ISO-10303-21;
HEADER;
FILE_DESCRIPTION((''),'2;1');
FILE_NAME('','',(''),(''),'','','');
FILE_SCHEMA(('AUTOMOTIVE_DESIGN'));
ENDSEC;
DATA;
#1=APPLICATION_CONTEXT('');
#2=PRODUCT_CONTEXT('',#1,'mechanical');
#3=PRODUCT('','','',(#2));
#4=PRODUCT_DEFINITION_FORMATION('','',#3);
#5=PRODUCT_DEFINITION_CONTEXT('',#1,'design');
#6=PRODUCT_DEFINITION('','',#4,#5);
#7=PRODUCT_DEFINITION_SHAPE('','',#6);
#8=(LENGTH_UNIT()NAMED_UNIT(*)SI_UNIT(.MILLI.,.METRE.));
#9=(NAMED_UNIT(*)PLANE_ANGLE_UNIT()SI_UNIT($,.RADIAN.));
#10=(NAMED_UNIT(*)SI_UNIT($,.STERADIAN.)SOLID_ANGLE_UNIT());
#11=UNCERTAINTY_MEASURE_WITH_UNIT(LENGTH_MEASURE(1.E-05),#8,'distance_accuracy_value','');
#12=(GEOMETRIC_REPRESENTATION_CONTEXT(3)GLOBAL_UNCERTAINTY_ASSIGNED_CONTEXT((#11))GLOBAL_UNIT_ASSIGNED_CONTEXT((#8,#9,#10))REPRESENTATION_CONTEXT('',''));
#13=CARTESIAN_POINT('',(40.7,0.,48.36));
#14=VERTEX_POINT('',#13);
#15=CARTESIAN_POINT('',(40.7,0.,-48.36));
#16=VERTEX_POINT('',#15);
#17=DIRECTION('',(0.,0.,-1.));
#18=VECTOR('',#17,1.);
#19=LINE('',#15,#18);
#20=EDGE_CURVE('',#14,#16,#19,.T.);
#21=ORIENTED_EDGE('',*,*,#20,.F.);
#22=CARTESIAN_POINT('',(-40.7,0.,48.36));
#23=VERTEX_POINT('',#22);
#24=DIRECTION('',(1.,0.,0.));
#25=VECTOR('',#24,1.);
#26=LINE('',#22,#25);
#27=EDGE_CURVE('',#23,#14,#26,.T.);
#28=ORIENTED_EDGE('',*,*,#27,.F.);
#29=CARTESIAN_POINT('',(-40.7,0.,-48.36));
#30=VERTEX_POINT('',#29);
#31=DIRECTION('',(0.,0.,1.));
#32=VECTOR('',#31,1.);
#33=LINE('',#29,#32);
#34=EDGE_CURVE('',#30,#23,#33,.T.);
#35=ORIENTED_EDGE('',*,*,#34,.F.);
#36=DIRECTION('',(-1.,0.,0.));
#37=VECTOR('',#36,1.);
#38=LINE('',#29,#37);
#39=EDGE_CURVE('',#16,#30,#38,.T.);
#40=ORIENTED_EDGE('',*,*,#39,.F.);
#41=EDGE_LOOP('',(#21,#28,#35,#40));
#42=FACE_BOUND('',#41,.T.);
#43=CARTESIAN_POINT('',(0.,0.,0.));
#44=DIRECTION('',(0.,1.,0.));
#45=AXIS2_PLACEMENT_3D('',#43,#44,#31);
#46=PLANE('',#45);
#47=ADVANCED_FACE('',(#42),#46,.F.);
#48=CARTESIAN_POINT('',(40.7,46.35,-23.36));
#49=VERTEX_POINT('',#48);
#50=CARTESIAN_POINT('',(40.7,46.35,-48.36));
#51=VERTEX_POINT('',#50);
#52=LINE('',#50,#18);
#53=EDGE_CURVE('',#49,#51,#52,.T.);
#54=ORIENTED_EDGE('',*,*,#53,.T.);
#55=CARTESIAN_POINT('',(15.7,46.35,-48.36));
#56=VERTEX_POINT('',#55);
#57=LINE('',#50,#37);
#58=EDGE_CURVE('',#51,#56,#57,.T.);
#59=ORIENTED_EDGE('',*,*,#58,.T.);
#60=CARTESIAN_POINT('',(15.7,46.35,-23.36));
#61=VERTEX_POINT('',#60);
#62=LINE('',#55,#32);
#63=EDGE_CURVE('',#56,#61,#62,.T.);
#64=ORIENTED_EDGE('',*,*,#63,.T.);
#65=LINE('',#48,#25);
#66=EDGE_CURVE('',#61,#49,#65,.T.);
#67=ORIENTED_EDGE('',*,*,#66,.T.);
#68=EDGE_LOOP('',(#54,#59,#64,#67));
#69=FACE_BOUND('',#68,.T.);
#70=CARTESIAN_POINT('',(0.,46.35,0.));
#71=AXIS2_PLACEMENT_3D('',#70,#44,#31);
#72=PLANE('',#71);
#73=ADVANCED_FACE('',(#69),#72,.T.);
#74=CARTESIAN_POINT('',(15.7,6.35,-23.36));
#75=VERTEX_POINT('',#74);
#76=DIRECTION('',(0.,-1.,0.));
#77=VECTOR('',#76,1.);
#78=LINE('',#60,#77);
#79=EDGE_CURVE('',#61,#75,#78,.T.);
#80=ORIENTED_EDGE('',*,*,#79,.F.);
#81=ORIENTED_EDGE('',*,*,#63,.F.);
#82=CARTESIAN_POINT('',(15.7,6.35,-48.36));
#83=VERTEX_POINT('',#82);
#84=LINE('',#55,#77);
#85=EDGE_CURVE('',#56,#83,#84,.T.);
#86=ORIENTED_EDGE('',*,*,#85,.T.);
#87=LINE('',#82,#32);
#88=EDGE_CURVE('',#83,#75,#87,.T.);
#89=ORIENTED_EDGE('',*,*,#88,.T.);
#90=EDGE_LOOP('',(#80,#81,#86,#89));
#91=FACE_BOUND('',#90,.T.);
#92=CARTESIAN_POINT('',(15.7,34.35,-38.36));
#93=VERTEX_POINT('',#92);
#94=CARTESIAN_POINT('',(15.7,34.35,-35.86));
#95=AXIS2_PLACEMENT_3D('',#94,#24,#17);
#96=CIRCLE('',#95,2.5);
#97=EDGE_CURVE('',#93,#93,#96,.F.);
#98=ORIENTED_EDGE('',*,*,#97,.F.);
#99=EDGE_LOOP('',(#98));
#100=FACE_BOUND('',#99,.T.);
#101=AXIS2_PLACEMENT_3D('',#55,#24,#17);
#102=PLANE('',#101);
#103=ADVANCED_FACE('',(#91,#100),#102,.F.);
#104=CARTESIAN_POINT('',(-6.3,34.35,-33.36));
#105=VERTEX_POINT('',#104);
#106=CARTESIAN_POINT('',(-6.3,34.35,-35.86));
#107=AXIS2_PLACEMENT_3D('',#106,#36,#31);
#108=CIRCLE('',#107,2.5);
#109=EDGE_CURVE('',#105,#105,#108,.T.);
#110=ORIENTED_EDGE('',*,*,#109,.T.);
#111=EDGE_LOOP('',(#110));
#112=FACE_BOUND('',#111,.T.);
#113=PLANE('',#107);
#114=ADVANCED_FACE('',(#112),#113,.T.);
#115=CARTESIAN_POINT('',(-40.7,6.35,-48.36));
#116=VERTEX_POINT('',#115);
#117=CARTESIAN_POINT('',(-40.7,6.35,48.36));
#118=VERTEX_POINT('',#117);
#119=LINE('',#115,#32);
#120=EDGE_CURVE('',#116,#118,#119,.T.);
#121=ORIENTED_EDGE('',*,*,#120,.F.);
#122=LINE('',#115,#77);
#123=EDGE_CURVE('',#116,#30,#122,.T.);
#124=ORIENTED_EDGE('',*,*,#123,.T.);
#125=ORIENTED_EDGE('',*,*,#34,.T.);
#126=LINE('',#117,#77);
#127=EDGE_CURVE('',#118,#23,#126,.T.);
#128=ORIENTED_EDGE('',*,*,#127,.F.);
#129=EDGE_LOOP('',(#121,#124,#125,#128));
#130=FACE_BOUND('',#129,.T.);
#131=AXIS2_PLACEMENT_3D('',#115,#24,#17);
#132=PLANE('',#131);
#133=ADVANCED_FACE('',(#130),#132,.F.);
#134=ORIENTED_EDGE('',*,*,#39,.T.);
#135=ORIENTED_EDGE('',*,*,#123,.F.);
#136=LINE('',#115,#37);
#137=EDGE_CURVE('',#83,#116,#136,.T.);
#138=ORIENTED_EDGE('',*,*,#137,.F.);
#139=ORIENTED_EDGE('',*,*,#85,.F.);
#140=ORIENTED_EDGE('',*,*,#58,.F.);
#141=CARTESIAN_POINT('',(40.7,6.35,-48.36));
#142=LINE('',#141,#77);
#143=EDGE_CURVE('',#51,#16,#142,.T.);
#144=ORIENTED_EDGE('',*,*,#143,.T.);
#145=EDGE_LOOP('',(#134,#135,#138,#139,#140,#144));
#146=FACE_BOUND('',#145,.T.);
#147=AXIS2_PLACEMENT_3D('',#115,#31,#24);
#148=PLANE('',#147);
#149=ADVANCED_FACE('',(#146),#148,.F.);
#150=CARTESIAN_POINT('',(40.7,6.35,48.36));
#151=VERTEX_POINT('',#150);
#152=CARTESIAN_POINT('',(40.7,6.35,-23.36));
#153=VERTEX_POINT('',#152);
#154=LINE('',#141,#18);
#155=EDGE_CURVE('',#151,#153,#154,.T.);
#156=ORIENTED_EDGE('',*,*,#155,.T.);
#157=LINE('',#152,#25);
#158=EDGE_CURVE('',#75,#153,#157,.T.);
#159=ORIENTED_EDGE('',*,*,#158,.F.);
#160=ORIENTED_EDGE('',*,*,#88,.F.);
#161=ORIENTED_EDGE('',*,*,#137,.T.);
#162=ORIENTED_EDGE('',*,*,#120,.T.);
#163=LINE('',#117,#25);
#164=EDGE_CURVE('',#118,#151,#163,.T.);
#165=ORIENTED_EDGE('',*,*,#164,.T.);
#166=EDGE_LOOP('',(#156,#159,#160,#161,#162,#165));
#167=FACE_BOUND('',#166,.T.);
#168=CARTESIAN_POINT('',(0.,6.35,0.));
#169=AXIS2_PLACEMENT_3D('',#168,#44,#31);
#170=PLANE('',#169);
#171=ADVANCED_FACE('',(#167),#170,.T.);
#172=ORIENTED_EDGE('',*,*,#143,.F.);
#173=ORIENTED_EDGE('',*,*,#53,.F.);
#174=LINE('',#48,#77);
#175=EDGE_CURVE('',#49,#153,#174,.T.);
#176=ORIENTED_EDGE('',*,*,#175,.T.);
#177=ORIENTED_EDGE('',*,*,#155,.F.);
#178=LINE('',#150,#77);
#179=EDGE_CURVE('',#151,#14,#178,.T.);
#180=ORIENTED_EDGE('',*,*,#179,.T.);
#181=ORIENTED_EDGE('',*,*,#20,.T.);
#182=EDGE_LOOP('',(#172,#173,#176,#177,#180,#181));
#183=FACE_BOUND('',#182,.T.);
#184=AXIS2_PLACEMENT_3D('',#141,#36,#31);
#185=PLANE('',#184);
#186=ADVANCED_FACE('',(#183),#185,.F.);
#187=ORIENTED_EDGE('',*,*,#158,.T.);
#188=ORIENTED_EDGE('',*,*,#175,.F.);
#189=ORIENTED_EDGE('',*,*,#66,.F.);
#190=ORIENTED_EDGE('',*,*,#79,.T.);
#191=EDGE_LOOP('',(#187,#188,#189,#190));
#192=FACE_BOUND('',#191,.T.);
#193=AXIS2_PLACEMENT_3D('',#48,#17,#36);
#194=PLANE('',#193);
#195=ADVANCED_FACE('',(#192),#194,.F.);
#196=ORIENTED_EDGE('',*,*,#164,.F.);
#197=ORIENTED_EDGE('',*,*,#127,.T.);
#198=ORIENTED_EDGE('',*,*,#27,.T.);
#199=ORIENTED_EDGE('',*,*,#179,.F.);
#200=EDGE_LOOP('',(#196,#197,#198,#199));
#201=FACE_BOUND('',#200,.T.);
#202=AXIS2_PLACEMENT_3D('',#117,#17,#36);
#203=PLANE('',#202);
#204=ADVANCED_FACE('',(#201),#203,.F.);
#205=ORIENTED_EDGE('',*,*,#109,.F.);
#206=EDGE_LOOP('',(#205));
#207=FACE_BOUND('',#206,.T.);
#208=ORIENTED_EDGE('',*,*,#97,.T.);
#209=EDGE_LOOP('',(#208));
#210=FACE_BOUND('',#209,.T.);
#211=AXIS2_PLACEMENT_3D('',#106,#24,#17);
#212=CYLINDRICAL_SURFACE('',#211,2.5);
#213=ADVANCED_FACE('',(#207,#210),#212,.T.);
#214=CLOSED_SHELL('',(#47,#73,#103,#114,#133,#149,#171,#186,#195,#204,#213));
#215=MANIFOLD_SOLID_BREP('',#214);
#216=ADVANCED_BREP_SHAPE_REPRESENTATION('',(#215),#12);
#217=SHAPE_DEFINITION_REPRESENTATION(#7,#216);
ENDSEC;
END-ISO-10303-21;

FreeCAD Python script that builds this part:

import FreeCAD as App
import Part
import Sketcher
from FreeCAD import Vector
Q = App.Units.Quantity


def add_polygon(sketch, points):
    """Adds a closed chain of lines whose ends are joined by coincident constraints."""
    first, n = sketch.GeometryCount, len(points)
    for a, b in zip(points, points[1:] + points[:1]):
        sketch.addGeometry(Part.LineSegment(App.Vector(*a, 0), App.Vector(*b, 0)), False)
    for i in range(n):
        sketch.addConstraint(Sketcher.Constraint("Coincident", first + i, 2, first + (i + 1) % n, 1))

doc = App.newDocument("Part")
body = doc.addObject("PartDesign::Body", "Body")

# Sketch on XZ plane
sketch1 = body.newObject("Sketcher::SketchObject", "Sketch")
sketch1.AttachmentSupport = (doc.getObject("XZ_Plane"), [""])
sketch1.MapMode = "FlatFace"
add_polygon(sketch1, [(-41, -48), (-41, 48), (41, 48), (41, -48)])  # lines 0-3
sketch1.addConstraint(Sketcher.Constraint("Vertical", 0))
sketch1.addConstraint(Sketcher.Constraint("Horizontal", 1))
sketch1.addConstraint(Sketcher.Constraint("Vertical", 2))
sketch1.addConstraint(Sketcher.Constraint("Horizontal", 3))
sketch1.addConstraint(Sketcher.Constraint("Symmetric", 0, 2, 2, 2, -1, 1))
sketch1.addConstraint(Sketcher.Constraint("DistanceX", 1, 1, 1, 2, Q("81.4 mm")))
sketch1.addConstraint(Sketcher.Constraint("DistanceY", 0, 1, 0, 2, Q("96.72 mm")))
pad1 = body.newObject("PartDesign::Pad", "Pad")
pad1.Profile = sketch1
pad1.Length = 6.35
pad1.Reversed = True

# Sketch on XZ plane
sketch2 = body.newObject("Sketcher::SketchObject", "Sketch001")
sketch2.AttachmentSupport = (doc.getObject("XZ_Plane"), [""])
sketch2.MapMode = "FlatFace"
sketch2.AttachmentOffset = App.Placement(Vector(0, 0, -6.35), App.Rotation())
add_polygon(sketch2, [(16, -48), (16, -23), (41, -23), (41, -48)])  # lines 0-3
sketch2.addConstraint(Sketcher.Constraint("Vertical", 0))
sketch2.addConstraint(Sketcher.Constraint("Horizontal", 1))
sketch2.addConstraint(Sketcher.Constraint("Vertical", 2))
sketch2.addConstraint(Sketcher.Constraint("Horizontal", 3))
sketch2.addConstraint(Sketcher.Constraint("Equal", 3, 0))
sketch2.addConstraint(Sketcher.Constraint("DistanceX", 1, 1, 1, 2, Q("25 mm")))
sketch2.addConstraint(Sketcher.Constraint("DistanceX", -1, 1, 0, 2, Q("15.7 mm")))
sketch2.addConstraint(Sketcher.Constraint("DistanceY", 0, 2, -1, 1, Q("23.36 mm")))
pad2 = body.newObject("PartDesign::Pad", "Pad001")
pad2.Profile = sketch2
pad2.Length = 40
pad2.Reversed = True

# Sketch on YZ plane
sketch3 = body.newObject("Sketcher::SketchObject", "Sketch002")
sketch3.AttachmentSupport = (doc.getObject("YZ_Plane"), [""])
sketch3.MapMode = "FlatFace"
sketch3.AttachmentOffset = App.Placement(Vector(0, 0, 15.7), App.Rotation())
sketch3.addGeometry(Part.Circle(Vector(34.4, -35.9, 0), Vector(0, 0, 1), 2.5), False)
sketch3.addConstraint(Sketcher.Constraint("Diameter", 0, Q("5 mm")))
sketch3.addConstraint(Sketcher.Constraint("DistanceX", -1, 1, 0, 3, Q("34.35 mm")))
sketch3.addConstraint(Sketcher.Constraint("DistanceY", 0, 3, -1, 1, Q("35.86 mm")))
pad3 = body.newObject("PartDesign::Pad", "Pad002")
pad3.Profile = sketch3
pad3.Length = 22
pad3.Reversed = True

doc.recompute()
